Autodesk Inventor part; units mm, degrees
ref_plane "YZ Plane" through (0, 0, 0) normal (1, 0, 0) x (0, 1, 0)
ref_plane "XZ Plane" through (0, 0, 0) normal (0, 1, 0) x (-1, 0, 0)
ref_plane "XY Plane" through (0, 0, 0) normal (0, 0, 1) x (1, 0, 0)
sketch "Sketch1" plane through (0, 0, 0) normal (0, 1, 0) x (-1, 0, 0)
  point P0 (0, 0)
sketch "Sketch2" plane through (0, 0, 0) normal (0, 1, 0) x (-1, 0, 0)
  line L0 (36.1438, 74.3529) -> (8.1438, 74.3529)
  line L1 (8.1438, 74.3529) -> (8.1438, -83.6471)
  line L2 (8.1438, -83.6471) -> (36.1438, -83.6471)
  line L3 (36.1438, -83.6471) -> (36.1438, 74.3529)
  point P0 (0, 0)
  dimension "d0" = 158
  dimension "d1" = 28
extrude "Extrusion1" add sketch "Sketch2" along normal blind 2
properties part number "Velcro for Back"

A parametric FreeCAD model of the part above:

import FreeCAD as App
import Part
import Sketcher

V = App.Vector
Q = App.Units.Quantity


def add_polygon(sketch, points):
    """Adds a closed chain of lines whose ends are joined by coincident constraints."""
    first, n = sketch.GeometryCount, len(points)
    for a, b in zip(points, points[1:] + points[:1]):
        sketch.addGeometry(Part.LineSegment(App.Vector(*a, 0), App.Vector(*b, 0)), False)
    for i in range(n):
        sketch.addConstraint(Sketcher.Constraint("Coincident", first + i, 2, first + (i + 1) % n, 1))

doc = App.newDocument("Part")
body = doc.addObject("PartDesign::Body", "Body")

sketch1 = doc.addObject("Sketcher::SketchObject", "Sketch")
body.addObject(sketch1)
sketch1.AttachmentSupport = (doc.XZ_Plane, [""])
sketch1.MapMode = "FlatFace"
add_polygon(sketch1, [(-36, -84), (-36, 74), (-8, 74), (-8, -84)])
sketch1.addConstraint([
    Sketcher.Constraint("Vertical", 0),
    Sketcher.Constraint("Horizontal", 1),
    Sketcher.Constraint("Vertical", 2),
    Sketcher.Constraint("Horizontal", 3),
    Sketcher.Constraint("DistanceX", 1, 1, 1, 2, Q("28 mm")),
    Sketcher.Constraint("DistanceY", 0, 1, 0, 2, Q("158 mm")),
    Sketcher.Constraint("DistanceY", -1, 1, 0, 2, Q("74.353 mm")),
    Sketcher.Constraint("DistanceX", 0, 2, -1, 1, Q("36.1438 mm")),
])
pad1 = doc.addObject("PartDesign::Pad", "Pad")
body.addObject(pad1)
pad1.Profile = sketch1
pad1.Length = 2
pad1.Reversed = True

doc.recompute()
